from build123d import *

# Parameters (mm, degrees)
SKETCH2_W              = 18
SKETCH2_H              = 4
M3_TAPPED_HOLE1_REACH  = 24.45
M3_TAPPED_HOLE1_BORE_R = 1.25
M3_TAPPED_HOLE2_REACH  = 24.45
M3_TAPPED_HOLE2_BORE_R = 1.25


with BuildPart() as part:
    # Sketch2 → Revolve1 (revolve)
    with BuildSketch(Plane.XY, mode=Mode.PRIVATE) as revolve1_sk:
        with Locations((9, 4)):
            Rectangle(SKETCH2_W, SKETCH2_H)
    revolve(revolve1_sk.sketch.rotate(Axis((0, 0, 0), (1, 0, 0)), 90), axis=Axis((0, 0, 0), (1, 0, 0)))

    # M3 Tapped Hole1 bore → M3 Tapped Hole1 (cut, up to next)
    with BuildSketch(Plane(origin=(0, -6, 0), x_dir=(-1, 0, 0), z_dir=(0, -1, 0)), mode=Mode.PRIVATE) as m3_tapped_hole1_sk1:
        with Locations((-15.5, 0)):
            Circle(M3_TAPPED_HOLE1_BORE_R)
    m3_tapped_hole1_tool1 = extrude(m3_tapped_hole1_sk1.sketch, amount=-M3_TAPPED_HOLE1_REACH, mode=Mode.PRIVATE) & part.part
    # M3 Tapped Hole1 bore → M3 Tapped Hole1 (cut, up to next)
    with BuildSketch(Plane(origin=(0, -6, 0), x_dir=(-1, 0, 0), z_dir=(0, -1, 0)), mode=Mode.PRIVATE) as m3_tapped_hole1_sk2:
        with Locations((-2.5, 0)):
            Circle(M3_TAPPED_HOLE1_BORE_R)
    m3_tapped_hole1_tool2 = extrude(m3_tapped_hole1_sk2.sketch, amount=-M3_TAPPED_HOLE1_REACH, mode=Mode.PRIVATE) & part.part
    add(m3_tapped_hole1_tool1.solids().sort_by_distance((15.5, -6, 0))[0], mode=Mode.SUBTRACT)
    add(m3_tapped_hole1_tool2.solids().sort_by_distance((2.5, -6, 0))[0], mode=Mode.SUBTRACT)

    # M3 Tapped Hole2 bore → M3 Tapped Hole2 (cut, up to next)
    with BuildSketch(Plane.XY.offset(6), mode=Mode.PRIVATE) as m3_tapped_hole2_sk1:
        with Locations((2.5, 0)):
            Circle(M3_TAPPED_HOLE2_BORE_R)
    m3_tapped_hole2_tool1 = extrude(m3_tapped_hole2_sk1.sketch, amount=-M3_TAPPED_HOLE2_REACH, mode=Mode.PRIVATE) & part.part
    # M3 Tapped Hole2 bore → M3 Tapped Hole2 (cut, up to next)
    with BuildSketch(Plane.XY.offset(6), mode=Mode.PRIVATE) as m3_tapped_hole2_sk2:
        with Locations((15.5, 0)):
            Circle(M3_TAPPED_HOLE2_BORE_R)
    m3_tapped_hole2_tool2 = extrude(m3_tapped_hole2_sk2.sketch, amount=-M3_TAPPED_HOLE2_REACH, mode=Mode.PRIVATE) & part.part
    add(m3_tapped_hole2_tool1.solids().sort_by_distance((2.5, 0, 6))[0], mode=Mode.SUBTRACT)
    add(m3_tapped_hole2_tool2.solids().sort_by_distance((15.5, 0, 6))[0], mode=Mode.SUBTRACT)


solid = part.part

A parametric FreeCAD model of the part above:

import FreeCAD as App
import Part
import Sketcher


def add_polygon(sketch, points):
    """Adds a closed chain of lines whose ends are joined by coincident constraints."""
    first, n = sketch.GeometryCount, len(points)
    for a, b in zip(points, points[1:] + points[:1]):
        sketch.addGeometry(Part.LineSegment(App.Vector(*a, 0), App.Vector(*b, 0)), False)
    for i in range(n):
        sketch.addConstraint(Sketcher.Constraint("Coincident", first + i, 2, first + (i + 1) % n, 1))

doc = App.newDocument("Part")
body = doc.addObject("PartDesign::Body", "Body")

# Sketch on XY plane
sketch1 = body.newObject("Sketcher::SketchObject", "Sketch")
sketch1.AttachmentSupport = (doc.getObject("XY_Plane"), [""])
sketch1.MapMode = "FlatFace"
add_polygon(sketch1, [(0, 6), (0, 2), (18, 2), (18, 6)])  # lines 0-3
sketch1.addConstraint([
    Sketcher.Constraint("Vertical", 0),
    Sketcher.Constraint("Horizontal", 1),
    Sketcher.Constraint("Vertical", 2),
    Sketcher.Constraint("Horizontal", 3),
    Sketcher.Constraint("PointOnObject", 0, 2, -2),
    Sketcher.Constraint("DistanceX", 1, 1, 1, 2, 18.0),
    Sketcher.Constraint("DistanceY", 0, 2, 0, 1, 4.0),
    Sketcher.Constraint("DistanceY", -1, 1, 0, 2, 2.0),
])
revolution = body.newObject("PartDesign::Revolution", "Revolution")
revolution.Profile = sketch1
revolution.ReferenceAxis = (sketch1, ["H_Axis"])
revolution.Angle = 360

# Sketch on XZ plane
sketch2 = body.newObject("Sketcher::SketchObject", "Sketch001")
sketch2.AttachmentSupport = (doc.getObject("XZ_Plane"), [""])
sketch2.MapMode = "FlatFace"
sketch2.AttachmentOffset = App.Placement(App.Vector(0, 0, 6), App.Rotation())
sketch2.addGeometry(Part.Circle(App.Vector(15.5, 0, 0), App.Vector(0, 0, 1), 1.2), False)
sketch2.addConstraint([
    Sketcher.Constraint("PointOnObject", 0, 3, -1),
    Sketcher.Constraint("Diameter", 0, 2.5),
    Sketcher.Constraint("DistanceX", -1, 1, 0, 3, 15.5),
])
pocket1 = body.newObject("PartDesign::Pocket", "Pocket")
pocket1.Profile = sketch2
pocket1.Type = "UpToFirst"

# Sketch on XZ plane
sketch3 = body.newObject("Sketcher::SketchObject", "Sketch002")
sketch3.AttachmentSupport = (doc.getObject("XZ_Plane"), [""])
sketch3.MapMode = "FlatFace"
sketch3.AttachmentOffset = App.Placement(App.Vector(0, 0, 6), App.Rotation())
sketch3.addGeometry(Part.Circle(App.Vector(2.5, 0, 0), App.Vector(0, 0, 1), 1.2), False)
sketch3.addConstraint([
    Sketcher.Constraint("PointOnObject", 0, 3, -1),
    Sketcher.Constraint("Diameter", 0, 2.5),
    Sketcher.Constraint("DistanceX", -1, 1, 0, 3, 2.5),
])
pocket2 = body.newObject("PartDesign::Pocket", "Pocket001")
pocket2.Profile = sketch3
pocket2.Type = "UpToFirst"

# Sketch on XY plane
sketch4 = body.newObject("Sketcher::SketchObject", "Sketch003")
sketch4.AttachmentSupport = (doc.getObject("XY_Plane"), [""])
sketch4.MapMode = "FlatFace"
sketch4.AttachmentOffset = App.Placement(App.Vector(0, 0, 6), App.Rotation())
sketch4.addGeometry(Part.Circle(App.Vector(2.5, 0, 0), App.Vector(0, 0, 1), 1.2), False)
sketch4.addConstraint([
    Sketcher.Constraint("PointOnObject", 0, 3, -1),
    Sketcher.Constraint("Diameter", 0, 2.5),
    Sketcher.Constraint("DistanceX", -1, 1, 0, 3, 2.5),
])
pocket3 = body.newObject("PartDesign::Pocket", "Pocket002")
pocket3.Profile = sketch4
pocket3.Type = "UpToFirst"

# Sketch on XY plane
sketch5 = body.newObject("Sketcher::SketchObject", "Sketch004")
sketch5.AttachmentSupport = (doc.getObject("XY_Plane"), [""])
sketch5.MapMode = "FlatFace"
sketch5.AttachmentOffset = App.Placement(App.Vector(0, 0, 6), App.Rotation())
sketch5.addGeometry(Part.Circle(App.Vector(15.5, 0, 0), App.Vector(0, 0, 1), 1.2), False)
sketch5.addConstraint([
    Sketcher.Constraint("PointOnObject", 0, 3, -1),
    Sketcher.Constraint("Diameter", 0, 2.5),
    Sketcher.Constraint("DistanceX", -1, 1, 0, 3, 15.5),
])
pocket4 = body.newObject("PartDesign::Pocket", "Pocket003")
pocket4.Profile = sketch5
pocket4.Type = "UpToFirst"

doc.recompute()
